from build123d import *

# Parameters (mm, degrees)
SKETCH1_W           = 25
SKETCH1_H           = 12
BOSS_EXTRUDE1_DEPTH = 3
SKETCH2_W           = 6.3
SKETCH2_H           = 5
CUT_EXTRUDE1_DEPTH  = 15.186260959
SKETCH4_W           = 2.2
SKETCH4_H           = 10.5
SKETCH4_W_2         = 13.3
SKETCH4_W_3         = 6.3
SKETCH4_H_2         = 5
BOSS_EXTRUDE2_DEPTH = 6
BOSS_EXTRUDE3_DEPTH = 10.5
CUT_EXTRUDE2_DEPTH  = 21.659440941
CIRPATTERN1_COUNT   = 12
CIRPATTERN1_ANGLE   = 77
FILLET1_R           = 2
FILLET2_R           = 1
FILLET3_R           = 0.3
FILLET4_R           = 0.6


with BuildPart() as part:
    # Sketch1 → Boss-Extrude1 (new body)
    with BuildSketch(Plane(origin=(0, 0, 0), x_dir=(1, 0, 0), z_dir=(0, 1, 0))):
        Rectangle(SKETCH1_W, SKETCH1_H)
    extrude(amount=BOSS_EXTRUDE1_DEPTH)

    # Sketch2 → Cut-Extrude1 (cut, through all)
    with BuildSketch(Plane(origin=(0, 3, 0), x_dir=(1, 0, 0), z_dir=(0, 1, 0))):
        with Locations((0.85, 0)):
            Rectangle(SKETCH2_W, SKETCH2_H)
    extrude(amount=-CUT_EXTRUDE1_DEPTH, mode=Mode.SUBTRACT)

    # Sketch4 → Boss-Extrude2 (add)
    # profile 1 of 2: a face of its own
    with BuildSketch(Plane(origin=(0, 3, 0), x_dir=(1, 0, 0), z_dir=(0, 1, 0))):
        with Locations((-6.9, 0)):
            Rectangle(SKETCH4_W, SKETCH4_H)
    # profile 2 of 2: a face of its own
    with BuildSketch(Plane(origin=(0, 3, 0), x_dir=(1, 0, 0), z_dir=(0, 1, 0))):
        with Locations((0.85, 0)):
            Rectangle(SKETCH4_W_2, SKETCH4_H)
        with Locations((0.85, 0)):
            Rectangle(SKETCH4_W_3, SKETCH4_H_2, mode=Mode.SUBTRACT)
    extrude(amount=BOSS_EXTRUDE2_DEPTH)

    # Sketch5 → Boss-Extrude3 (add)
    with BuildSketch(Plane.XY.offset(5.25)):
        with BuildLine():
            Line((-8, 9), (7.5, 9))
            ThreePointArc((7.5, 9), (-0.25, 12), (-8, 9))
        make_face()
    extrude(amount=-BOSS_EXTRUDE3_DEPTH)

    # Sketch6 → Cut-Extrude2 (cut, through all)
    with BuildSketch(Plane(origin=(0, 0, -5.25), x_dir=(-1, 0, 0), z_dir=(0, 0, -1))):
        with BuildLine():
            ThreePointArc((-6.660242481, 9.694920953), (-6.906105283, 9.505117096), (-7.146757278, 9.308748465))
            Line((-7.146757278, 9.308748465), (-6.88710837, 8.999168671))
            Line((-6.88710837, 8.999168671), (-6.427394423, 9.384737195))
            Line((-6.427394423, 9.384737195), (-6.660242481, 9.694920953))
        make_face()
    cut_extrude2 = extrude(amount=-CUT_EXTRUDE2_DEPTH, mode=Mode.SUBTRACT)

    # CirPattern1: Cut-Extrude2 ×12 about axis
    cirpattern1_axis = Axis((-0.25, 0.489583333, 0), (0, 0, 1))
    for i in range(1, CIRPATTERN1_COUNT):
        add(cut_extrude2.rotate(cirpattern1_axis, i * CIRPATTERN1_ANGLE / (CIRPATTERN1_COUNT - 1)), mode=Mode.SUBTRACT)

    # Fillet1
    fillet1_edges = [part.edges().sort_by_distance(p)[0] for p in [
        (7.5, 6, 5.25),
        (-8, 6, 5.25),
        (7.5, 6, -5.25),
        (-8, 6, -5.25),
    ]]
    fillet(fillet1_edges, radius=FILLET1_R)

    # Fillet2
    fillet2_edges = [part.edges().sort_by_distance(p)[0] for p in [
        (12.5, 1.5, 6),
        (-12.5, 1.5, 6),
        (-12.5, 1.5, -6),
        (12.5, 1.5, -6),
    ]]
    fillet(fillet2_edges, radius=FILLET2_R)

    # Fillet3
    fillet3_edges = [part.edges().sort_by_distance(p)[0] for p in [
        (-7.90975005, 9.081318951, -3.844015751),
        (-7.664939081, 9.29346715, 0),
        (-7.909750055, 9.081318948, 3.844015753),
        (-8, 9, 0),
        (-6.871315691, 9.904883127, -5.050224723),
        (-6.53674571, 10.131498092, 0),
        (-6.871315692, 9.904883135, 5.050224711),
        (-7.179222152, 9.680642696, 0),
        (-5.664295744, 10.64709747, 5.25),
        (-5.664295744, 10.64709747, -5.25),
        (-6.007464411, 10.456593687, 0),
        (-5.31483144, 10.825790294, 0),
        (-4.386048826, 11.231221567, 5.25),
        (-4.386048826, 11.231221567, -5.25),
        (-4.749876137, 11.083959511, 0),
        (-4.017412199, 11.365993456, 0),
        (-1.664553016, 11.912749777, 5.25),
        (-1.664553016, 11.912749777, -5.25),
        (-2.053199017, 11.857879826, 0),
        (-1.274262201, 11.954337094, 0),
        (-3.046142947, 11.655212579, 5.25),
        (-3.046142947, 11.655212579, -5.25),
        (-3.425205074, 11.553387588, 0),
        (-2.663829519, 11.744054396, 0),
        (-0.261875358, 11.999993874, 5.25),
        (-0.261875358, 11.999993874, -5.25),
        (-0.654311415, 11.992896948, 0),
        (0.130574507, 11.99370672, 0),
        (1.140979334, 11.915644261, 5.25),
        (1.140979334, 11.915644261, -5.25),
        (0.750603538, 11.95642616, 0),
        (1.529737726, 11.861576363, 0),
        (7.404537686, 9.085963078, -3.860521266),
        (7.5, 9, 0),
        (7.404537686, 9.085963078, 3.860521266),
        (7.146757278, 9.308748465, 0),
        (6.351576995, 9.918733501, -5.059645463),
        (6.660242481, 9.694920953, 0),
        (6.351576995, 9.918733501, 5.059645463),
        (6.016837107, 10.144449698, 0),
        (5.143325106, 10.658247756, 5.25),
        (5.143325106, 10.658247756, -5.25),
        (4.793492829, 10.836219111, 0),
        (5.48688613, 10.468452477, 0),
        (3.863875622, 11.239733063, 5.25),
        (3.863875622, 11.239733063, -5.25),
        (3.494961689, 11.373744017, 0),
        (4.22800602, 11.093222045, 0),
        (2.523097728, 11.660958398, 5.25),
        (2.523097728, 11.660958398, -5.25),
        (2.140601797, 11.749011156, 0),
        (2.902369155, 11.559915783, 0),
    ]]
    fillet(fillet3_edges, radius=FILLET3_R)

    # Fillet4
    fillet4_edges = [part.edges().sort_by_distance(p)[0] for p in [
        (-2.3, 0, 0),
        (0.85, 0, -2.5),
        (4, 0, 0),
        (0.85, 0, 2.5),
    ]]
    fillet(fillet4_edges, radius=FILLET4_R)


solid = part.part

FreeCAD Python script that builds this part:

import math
import FreeCAD as App
import Part
import Sketcher


def edges_at(feature, points):
    """Names of the edges that pass closest to the given points."""
    edges = feature.Shape.Edges
    near = lambda p: min(range(len(edges)), key=lambda i: edges[i].distToShape(Part.Vertex(*p))[0])
    return sorted({f"Edge{near(p) + 1}" for p in points})


def add_polygon(sketch, points):
    """Adds a closed chain of lines whose ends are joined by coincident constraints."""
    first, n = sketch.GeometryCount, len(points)
    for a, b in zip(points, points[1:] + points[:1]):
        sketch.addGeometry(Part.LineSegment(App.Vector(*a, 0), App.Vector(*b, 0)), False)
    for i in range(n):
        sketch.addConstraint(Sketcher.Constraint("Coincident", first + i, 2, first + (i + 1) % n, 1))

doc = App.newDocument("Part")
body = doc.addObject("PartDesign::Body", "Body")

# Sketch on XZ plane
sketch1 = body.newObject("Sketcher::SketchObject", "Sketch")
sketch1.AttachmentSupport = (doc.getObject("XZ_Plane"), [""])
sketch1.MapMode = "FlatFace"
add_polygon(sketch1, [(-12, -6), (-12, 6), (12, 6), (12, -6)])  # lines 0-3
sketch1.addConstraint(Sketcher.Constraint("Vertical", 0))
sketch1.addConstraint(Sketcher.Constraint("Horizontal", 1))
sketch1.addConstraint(Sketcher.Constraint("Vertical", 2))
sketch1.addConstraint(Sketcher.Constraint("Horizontal", 3))
sketch1.addConstraint(Sketcher.Constraint("Symmetric", 0, 2, 2, 2, -1, 1))
sketch1.addConstraint(Sketcher.Constraint("DistanceX", 1, 1, 1, 2, 25.0))
sketch1.addConstraint(Sketcher.Constraint("DistanceY", 0, 1, 0, 2, 12.0))
pad1 = body.newObject("PartDesign::Pad", "Pad")
pad1.Profile = sketch1
pad1.Length = 3
pad1.Reversed = True

# Sketch on XZ plane
sketch2 = body.newObject("Sketcher::SketchObject", "Sketch001")
sketch2.AttachmentSupport = (doc.getObject("XZ_Plane"), [""])
sketch2.MapMode = "FlatFace"
sketch2.AttachmentOffset = App.Placement(App.Vector(0, 0, -3), App.Rotation())
add_polygon(sketch2, [(-2, -2), (-2, 2), (4, 2), (4, -2)])  # lines 0-3
sketch2.addConstraint(Sketcher.Constraint("Vertical", 0))
sketch2.addConstraint(Sketcher.Constraint("Horizontal", 1))
sketch2.addConstraint(Sketcher.Constraint("Vertical", 2))
sketch2.addConstraint(Sketcher.Constraint("Horizontal", 3))
sketch2.addConstraint(Sketcher.Constraint("DistanceY", 0, 1, 0, 2, 5.0))
sketch2.addConstraint(Sketcher.Constraint("DistanceX", 1, 1, 1, 2, 6.3))
sketch2.addConstraint(Sketcher.Constraint("DistanceX", -1, 1, 1, 2, 4.0))
sketch2.addConstraint(Sketcher.Constraint("DistanceY", -1, 1, 0, 2, 2.5))
pocket1 = body.newObject("PartDesign::Pocket", "Pocket")
pocket1.Profile = sketch2
pocket1.Type = "ThroughAll"
pocket1.Reversed = True

# Sketch on XZ plane
sketch3 = body.newObject("Sketcher::SketchObject", "Sketch002")
sketch3.AttachmentSupport = (doc.getObject("XZ_Plane"), [""])
sketch3.MapMode = "FlatFace"
sketch3.AttachmentOffset = App.Placement(App.Vector(0, 0, -3), App.Rotation())
add_polygon(sketch3, [(-8, -5), (-8, 5), (8, 5), (8, -5)])  # lines 0-3
add_polygon(sketch3, [(-2, 2), (-2, -2), (4, -2), (4, 2)])  # lines 4-7
sketch3.addConstraint(Sketcher.Constraint("Vertical", 0))
sketch3.addConstraint(Sketcher.Constraint("Horizontal", 1))
sketch3.addConstraint(Sketcher.Constraint("Vertical", 2))
sketch3.addConstraint(Sketcher.Constraint("Horizontal", 3))
sketch3.addConstraint(Sketcher.Constraint("Vertical", 4))
sketch3.addConstraint(Sketcher.Constraint("Horizontal", 5))
sketch3.addConstraint(Sketcher.Constraint("Vertical", 6))
sketch3.addConstraint(Sketcher.Constraint("Horizontal", 7))
sketch3.addConstraint(Sketcher.Constraint("DistanceY", 4, 2, 4, 1, 5.0))
sketch3.addConstraint(Sketcher.Constraint("DistanceX", 1, 1, 1, 2, 15.5))
sketch3.addConstraint(Sketcher.Constraint("DistanceX", 5, 1, 5, 2, 6.3))
sketch3.addConstraint(Sketcher.Constraint("DistanceY", 0, 1, 0, 2, 10.5))
sketch3.addConstraint(Sketcher.Constraint("DistanceX", 0, 2, -1, 1, 8.0))
sketch3.addConstraint(Sketcher.Constraint("DistanceX", -1, 1, 5, 2, 4.0))
sketch3.addConstraint(Sketcher.Constraint("DistanceY", 4, 2, -1, 1, 2.5))
sketch3.addConstraint(Sketcher.Constraint("DistanceY", -1, 1, 0, 2, 5.25))
pad2 = body.newObject("PartDesign::Pad", "Pad001")
pad2.Profile = sketch3
pad2.Length = 6
pad2.Reversed = True

# Sketch on XY plane
sketch4 = body.newObject("Sketcher::SketchObject", "Sketch003")
sketch4.AttachmentSupport = (doc.getObject("XY_Plane"), [""])
sketch4.MapMode = "FlatFace"
sketch4.AttachmentOffset = App.Placement(App.Vector(0, 0, 5.25), App.Rotation())
sketch4.addGeometry(Part.LineSegment(App.Vector(-8, 9, 0), App.Vector(8, 9, 0)), False)
sketch4.addGeometry(Part.ArcOfCircle(Part.Circle(App.Vector(0, 0, 0), App.Vector(0, 0, 1), 12), math.radians(48), math.radians(132)), False)
sketch4.addConstraint(Sketcher.Constraint("Coincident", 0, 1, 1, 2))
sketch4.addConstraint(Sketcher.Constraint("Coincident", 1, 1, 0, 2))
sketch4.addConstraint(Sketcher.Constraint("Horizontal", 0))
sketch4.addConstraint(Sketcher.Constraint("DistanceX", 0, 1, 0, 2, 15.5))
sketch4.addConstraint(Sketcher.Constraint("DistanceX", 0, 1, -1, 1, 8.0))
sketch4.addConstraint(Sketcher.Constraint("DistanceY", -1, 1, 0, 1, 9.0))
sketch4.addConstraint(Sketcher.Constraint("Radius", 1, 11.510417))
pad3 = body.newObject("PartDesign::Pad", "Pad002")
pad3.Profile = sketch4
pad3.Length = 10.5
pad3.Reversed = True

# Sketch on XY plane
sketch5 = body.newObject("Sketcher::SketchObject", "Sketch004")
sketch5.AttachmentSupport = (doc.getObject("XY_Plane"), [""])
sketch5.MapMode = "FlatFace"
sketch5.AttachmentOffset = App.Placement(App.Vector(0, 0, -5.25), App.Rotation())
sketch5.addGeometry(Part.ArcOfCircle(Part.Circle(App.Vector(-0.25, 0.49, 0), App.Vector(0, 0, 1), 11.51), math.radians(50.01), math.radians(53.11)), False)
sketch5.addGeometry(Part.LineSegment(App.Vector(7.15, 9.31, 0), App.Vector(6.89, 9, 0)), False)
sketch5.addGeometry(Part.LineSegment(App.Vector(6.89, 9, 0), App.Vector(6.43, 9.38, 0)), False)
sketch5.addGeometry(Part.LineSegment(App.Vector(6.43, 9.38, 0), App.Vector(6.66, 9.69, 0)), False)
sketch5.addConstraint(Sketcher.Constraint("Coincident", 0, 1, 1, 1))
sketch5.addConstraint(Sketcher.Constraint("Coincident", 1, 2, 2, 1))
sketch5.addConstraint(Sketcher.Constraint("Coincident", 2, 2, 3, 1))
sketch5.addConstraint(Sketcher.Constraint("Coincident", 3, 2, 0, 2))
sketch5.addConstraint(Sketcher.Constraint("Perpendicular", 1, 2))
sketch5.addConstraint(Sketcher.Constraint("Distance", 2, 0.6))
sketch5.addConstraint(Sketcher.Constraint("DistanceX", 0, 3, -1, 1, 0.25))
sketch5.addConstraint(Sketcher.Constraint("Radius", 0, 11.510416))
sketch5.addConstraint(Sketcher.Constraint("Distance", 1, 0.404051))
sketch5.addConstraint(Sketcher.Constraint("DistanceY", -1, 1, 0, 1, 9.308748))
sketch5.addConstraint(Sketcher.Constraint("DistanceX", -1, 1, 1, 2, 6.887108))
sketch5.addConstraint(Sketcher.Constraint("DistanceY", -1, 1, 1, 2, 8.999169))
sketch5.addConstraint(Sketcher.Constraint("DistanceY", -1, 1, 3, 2, 9.694921))
pocket2 = body.newObject("PartDesign::Pocket", "Pocket001")
pocket2.Profile = sketch5
pocket2.Type = "ThroughAll"
pocket2.Reversed = True
doc.recompute()

datumline = body.newObject("PartDesign::Line", "DatumLine")
datumline.Placement = App.Placement(App.Vector(-0.25, 0.489583, 0), App.Rotation(App.Vector(0, 0, 1), App.Vector(0, 0, 1)))
polarpattern = body.newObject("PartDesign::PolarPattern", "PolarPattern")
polarpattern.Originals = [pocket2]
polarpattern.Axis = (datumline, [""])
polarpattern.Angle = 77
polarpattern.Occurrences = 12
body.Tip = polarpattern
doc.recompute()

fillet = body.newObject("PartDesign::Fillet", "Fillet")
fillet.Base = (polarpattern, edges_at(polarpattern, [
    (7.5, 6, 5.25),
    (-8, 6, 5.25),
    (7.5, 6, -5.25),
    (-8, 6, -5.25),
]))
fillet.Radius = 2
doc.recompute()

fillet2 = body.newObject("PartDesign::Fillet", "Fillet001")
fillet2.Base = (fillet, edges_at(fillet, [
    (12.5, 1.5, 6),
    (-12.5, 1.5, 6),
    (-12.5, 1.5, -6),
    (12.5, 1.5, -6),
]))
fillet2.Radius = 1
doc.recompute()

fillet3 = body.newObject("PartDesign::Fillet", "Fillet002")
fillet3.Base = (fillet2, edges_at(fillet2, [
    (-7.91, 9.081, -3.844),
    (-7.665, 9.293, 0),
    (-7.91, 9.081, 3.844),
    (-8, 9, 0),
    (-6.871, 9.905, -5.05),
    (-6.537, 10.131, 0),
    (-6.871, 9.905, 5.05),
    (-7.179, 9.681, 0),
    (-5.664, 10.647, 5.25),
    (-5.664, 10.647, -5.25),
    (-6.007, 10.457, 0),
    (-5.315, 10.826, 0),
    (-4.386, 11.231, 5.25),
    (-4.386, 11.231, -5.25),
    (-4.75, 11.084, 0),
    (-4.017, 11.366, 0),
    (-1.665, 11.913, 5.25),
    (-1.665, 11.913, -5.25),
    (-2.053, 11.858, 0),
    (-1.274, 11.954, 0),
    (-3.046, 11.655, 5.25),
    (-3.046, 11.655, -5.25),
    (-3.425, 11.553, 0),
    (-2.664, 11.744, 0),
    (-0.262, 12, 5.25),
    (-0.262, 12, -5.25),
    (-0.654, 11.993, 0),
    (0.131, 11.994, 0),
    (1.141, 11.916, 5.25),
    (1.141, 11.916, -5.25),
    (0.751, 11.956, 0),
    (1.53, 11.862, 0),
    (7.405, 9.086, -3.861),
    (7.5, 9, 0),
    (7.405, 9.086, 3.861),
    (7.147, 9.309, 0),
    (6.352, 9.919, -5.06),
    (6.66, 9.695, 0),
    (6.352, 9.919, 5.06),
    (6.017, 10.144, 0),
    (5.143, 10.658, 5.25),
    (5.143, 10.658, -5.25),
    (4.793, 10.836, 0),
    (5.487, 10.468, 0),
    (3.864, 11.24, 5.25),
    (3.864, 11.24, -5.25),
    (3.495, 11.374, 0),
    (4.228, 11.093, 0),
    (2.523, 11.661, 5.25),
    (2.523, 11.661, -5.25),
    (2.141, 11.749, 0),
    (2.902, 11.56, 0),
]))
fillet3.Radius = 0.3
doc.recompute()

fillet4 = body.newObject("PartDesign::Fillet", "Fillet003")
fillet4.Base = (fillet3, edges_at(fillet3, [
    (-2.3, 0, 0),
    (0.85, 0, -2.5),
    (4, 0, 0),
    (0.85, 0, 2.5),
]))
fillet4.Radius = 0.6

doc.recompute()
